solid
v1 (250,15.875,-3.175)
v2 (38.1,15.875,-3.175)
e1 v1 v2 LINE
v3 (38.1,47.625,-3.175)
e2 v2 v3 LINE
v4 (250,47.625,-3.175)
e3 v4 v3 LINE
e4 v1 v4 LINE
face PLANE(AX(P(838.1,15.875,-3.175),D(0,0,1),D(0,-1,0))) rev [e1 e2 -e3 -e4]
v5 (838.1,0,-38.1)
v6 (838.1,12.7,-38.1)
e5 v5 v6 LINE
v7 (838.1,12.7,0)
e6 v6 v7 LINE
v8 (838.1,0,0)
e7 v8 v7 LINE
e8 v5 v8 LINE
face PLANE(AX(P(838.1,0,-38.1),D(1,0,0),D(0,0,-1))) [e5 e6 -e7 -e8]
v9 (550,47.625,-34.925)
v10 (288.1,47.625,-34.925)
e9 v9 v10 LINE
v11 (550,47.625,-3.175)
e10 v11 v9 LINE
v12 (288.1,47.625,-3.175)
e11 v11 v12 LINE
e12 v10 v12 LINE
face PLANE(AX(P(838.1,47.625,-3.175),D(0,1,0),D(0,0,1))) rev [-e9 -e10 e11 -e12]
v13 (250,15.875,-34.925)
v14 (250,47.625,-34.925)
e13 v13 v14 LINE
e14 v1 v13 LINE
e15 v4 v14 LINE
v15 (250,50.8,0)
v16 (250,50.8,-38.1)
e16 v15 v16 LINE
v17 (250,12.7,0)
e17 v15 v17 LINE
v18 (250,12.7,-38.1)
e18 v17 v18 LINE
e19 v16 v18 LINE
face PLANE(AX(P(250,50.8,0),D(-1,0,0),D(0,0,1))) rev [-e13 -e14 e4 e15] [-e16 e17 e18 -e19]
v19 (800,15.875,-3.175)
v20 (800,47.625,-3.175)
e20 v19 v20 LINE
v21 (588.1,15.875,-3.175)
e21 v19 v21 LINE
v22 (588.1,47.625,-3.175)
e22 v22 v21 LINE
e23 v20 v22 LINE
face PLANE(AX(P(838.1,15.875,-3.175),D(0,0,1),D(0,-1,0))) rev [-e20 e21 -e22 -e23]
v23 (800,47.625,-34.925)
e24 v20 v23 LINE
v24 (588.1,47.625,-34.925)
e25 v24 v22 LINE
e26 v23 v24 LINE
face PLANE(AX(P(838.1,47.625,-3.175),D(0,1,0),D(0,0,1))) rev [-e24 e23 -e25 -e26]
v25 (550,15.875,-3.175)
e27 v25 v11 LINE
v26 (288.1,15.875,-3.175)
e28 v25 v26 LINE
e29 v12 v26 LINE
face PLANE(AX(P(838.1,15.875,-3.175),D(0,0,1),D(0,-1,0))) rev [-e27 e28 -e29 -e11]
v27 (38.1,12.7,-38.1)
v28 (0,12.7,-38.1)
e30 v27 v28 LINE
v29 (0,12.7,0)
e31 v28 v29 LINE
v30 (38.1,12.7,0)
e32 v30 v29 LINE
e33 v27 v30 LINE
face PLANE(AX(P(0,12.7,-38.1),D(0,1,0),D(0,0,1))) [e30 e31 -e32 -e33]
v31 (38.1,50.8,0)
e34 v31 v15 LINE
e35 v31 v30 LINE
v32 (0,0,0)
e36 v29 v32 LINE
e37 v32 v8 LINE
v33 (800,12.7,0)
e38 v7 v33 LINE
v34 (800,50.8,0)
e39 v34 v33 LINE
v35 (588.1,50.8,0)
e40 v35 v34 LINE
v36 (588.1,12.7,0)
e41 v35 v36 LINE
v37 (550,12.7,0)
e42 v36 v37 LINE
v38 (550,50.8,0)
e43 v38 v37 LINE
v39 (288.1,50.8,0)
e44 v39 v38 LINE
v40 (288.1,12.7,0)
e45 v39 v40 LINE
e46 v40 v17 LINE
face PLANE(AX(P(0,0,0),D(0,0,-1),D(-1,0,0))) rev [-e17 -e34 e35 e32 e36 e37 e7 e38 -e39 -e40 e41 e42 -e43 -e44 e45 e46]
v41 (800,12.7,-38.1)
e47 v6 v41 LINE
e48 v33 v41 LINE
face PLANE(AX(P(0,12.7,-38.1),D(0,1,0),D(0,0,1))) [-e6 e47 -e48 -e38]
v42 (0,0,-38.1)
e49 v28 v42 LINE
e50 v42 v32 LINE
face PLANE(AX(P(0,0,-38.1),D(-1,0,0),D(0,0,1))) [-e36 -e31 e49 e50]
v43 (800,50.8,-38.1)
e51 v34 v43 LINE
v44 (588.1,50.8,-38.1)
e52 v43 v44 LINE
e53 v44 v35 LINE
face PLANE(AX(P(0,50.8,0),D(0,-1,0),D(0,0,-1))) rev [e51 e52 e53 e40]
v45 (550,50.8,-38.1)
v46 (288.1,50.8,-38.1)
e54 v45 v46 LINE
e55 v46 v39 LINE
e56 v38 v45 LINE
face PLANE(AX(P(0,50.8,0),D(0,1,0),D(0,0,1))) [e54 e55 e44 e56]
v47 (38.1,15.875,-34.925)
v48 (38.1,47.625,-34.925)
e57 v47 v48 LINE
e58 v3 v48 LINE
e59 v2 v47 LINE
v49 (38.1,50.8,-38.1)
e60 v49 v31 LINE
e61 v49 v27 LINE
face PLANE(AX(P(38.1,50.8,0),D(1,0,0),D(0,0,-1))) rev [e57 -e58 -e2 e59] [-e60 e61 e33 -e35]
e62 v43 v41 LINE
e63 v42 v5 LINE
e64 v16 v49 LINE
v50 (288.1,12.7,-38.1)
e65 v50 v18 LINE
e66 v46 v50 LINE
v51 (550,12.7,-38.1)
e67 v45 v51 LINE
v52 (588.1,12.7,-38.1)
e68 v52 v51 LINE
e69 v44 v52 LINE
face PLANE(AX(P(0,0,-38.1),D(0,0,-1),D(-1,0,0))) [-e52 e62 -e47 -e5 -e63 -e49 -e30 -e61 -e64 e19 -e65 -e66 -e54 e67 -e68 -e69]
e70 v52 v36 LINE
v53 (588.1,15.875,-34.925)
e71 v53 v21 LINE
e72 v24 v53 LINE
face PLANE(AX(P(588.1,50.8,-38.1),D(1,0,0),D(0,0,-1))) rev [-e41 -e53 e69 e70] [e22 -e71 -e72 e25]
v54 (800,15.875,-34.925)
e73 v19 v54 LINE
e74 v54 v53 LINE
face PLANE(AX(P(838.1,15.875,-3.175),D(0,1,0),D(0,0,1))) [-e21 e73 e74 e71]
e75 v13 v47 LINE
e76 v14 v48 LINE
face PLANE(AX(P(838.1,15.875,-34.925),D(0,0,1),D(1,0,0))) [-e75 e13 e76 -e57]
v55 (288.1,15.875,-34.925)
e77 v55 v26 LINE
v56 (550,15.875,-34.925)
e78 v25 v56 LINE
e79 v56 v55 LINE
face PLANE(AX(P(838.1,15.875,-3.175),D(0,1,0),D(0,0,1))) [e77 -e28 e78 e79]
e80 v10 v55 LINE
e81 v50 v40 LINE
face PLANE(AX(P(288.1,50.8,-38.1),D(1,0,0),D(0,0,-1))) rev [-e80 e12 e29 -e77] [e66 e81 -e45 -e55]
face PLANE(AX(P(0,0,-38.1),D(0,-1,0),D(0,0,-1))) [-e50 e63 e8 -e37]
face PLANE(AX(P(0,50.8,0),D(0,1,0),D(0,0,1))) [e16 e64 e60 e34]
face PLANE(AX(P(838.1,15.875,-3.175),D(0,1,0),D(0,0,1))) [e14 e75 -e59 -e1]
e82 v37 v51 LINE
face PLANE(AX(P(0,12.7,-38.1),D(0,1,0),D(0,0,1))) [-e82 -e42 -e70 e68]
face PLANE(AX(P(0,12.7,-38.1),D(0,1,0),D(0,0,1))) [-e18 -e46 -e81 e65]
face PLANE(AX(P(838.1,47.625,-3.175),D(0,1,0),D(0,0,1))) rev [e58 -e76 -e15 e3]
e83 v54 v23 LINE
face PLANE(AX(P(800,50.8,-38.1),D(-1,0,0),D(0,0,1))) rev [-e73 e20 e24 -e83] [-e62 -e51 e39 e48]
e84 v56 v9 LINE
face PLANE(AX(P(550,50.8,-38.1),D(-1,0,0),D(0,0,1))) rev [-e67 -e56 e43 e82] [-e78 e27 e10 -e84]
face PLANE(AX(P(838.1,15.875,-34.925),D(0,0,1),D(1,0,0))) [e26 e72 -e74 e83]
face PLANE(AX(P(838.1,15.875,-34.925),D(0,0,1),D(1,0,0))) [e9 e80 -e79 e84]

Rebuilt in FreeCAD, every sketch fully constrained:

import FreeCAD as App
import Part
import Sketcher
Q = App.Units.Quantity


def add_polygon(sketch, points):
    """Adds a closed chain of lines whose ends are joined by coincident constraints."""
    first, n = sketch.GeometryCount, len(points)
    for a, b in zip(points, points[1:] + points[:1]):
        sketch.addGeometry(Part.LineSegment(App.Vector(*a, 0), App.Vector(*b, 0)), False)
    for i in range(n):
        sketch.addConstraint(Sketcher.Constraint("Coincident", first + i, 2, first + (i + 1) % n, 1))

doc = App.newDocument("Part")
params = doc.addObject("Spreadsheet::Sheet", "Params")
for row, (alias, value) in enumerate([
    ("sketch1_width", "838.1 mm"),
    ("sketch1_height", "12.7 mm"),
    ("pad1_length", "38.1 mm"),
    ("sketch2_width", "211.9 mm"),
    ("sketch2_width2", "261.9 mm"),
    ("sketch2_height", "38.1 mm"),
    ("pad2_length", "38.1 mm"),
    ("sketch3_width", "31.75 mm"),
], start=1):
    params.set(f"A{row}", alias)
    params.set(f"B{row}", "=" + value)
    params.setAlias(f"B{row}", alias)

body = doc.addObject("PartDesign::Body", "Body")

# Sketch on XY plane
sketch1 = doc.addObject("Sketcher::SketchObject", "Sketch")
body.addObject(sketch1)
sketch1.AttachmentSupport = (doc.XY_Plane, [""])
sketch1.MapMode = "FlatFace"
add_polygon(sketch1, [(0, 13), (0, 0), (838, 0), (838, 13)])  # lines 0-3
sketch1.addConstraint(Sketcher.Constraint("Vertical", 0))
sketch1.addConstraint(Sketcher.Constraint("Horizontal", 1))
sketch1.addConstraint(Sketcher.Constraint("Vertical", 2))
sketch1.addConstraint(Sketcher.Constraint("Horizontal", 3))
sketch1.addConstraint(Sketcher.Constraint("Coincident", 0, 2, -1, 1))
sketch1.addConstraint(Sketcher.Constraint("DistanceX", 1, 1, 1, 2, Q("838.1 mm")))
sketch1.addConstraint(Sketcher.Constraint("DistanceY", 0, 2, 0, 1, Q("12.7 mm")))
sketch1.setExpression("Constraints[9]", "Params.sketch1_width")
sketch1.setExpression("Constraints[10]", "Params.sketch1_height")
pad1 = doc.addObject("PartDesign::Pad", "Pad")
body.addObject(pad1)
pad1.Profile = sketch1
pad1.setExpression("Length", "Params.pad1_length")
pad1.Reversed = True

# Sketch on XZ plane
sketch2 = doc.addObject("Sketcher::SketchObject", "Sketch001")
body.addObject(sketch2)
sketch2.AttachmentSupport = (doc.XZ_Plane, [""])
sketch2.MapMode = "FlatFace"
sketch2.AttachmentOffset = App.Placement(App.Vector(0, 0, -12.7), App.Rotation())
add_polygon(sketch2, [(38, -38), (38, 0), (250, 0), (250, -38)])  # lines 0-3
add_polygon(sketch2, [(288, -38), (288, 0), (550, 0), (550, -38)])  # lines 4-7
add_polygon(sketch2, [(588, -38), (588, 0), (800, 0), (800, -38)])  # lines 8-11
sketch2.addConstraint(Sketcher.Constraint("Vertical", 0))
sketch2.addConstraint(Sketcher.Constraint("Horizontal", 1))
sketch2.addConstraint(Sketcher.Constraint("Vertical", 2))
sketch2.addConstraint(Sketcher.Constraint("Horizontal", 3))
sketch2.addConstraint(Sketcher.Constraint("Vertical", 4))
sketch2.addConstraint(Sketcher.Constraint("Horizontal", 5))
sketch2.addConstraint(Sketcher.Constraint("Vertical", 6))
sketch2.addConstraint(Sketcher.Constraint("Horizontal", 7))
sketch2.addConstraint(Sketcher.Constraint("Vertical", 8))
sketch2.addConstraint(Sketcher.Constraint("Horizontal", 9))
sketch2.addConstraint(Sketcher.Constraint("Vertical", 10))
sketch2.addConstraint(Sketcher.Constraint("Horizontal", 11))
sketch2.addConstraint(Sketcher.Constraint("PointOnObject", 0, 2, -1))
sketch2.addConstraint(Sketcher.Constraint("PointOnObject", 4, 2, -1))
sketch2.addConstraint(Sketcher.Constraint("PointOnObject", 8, 2, -1))
sketch2.addConstraint(Sketcher.Constraint("Horizontal", 3, 2, 6, 2))
sketch2.addConstraint(Sketcher.Constraint("Horizontal", 7, 2, 10, 2))
sketch2.addConstraint(Sketcher.Constraint("Equal", 3, 9))
sketch2.addConstraint(Sketcher.Constraint("DistanceX", 1, 1, 1, 2, Q("211.9 mm")))
sketch2.addConstraint(Sketcher.Constraint("DistanceX", 5, 1, 5, 2, Q("261.9 mm")))
sketch2.addConstraint(Sketcher.Constraint("DistanceY", 0, 1, 0, 2, Q("38.1 mm")))
sketch2.addConstraint(Sketcher.Constraint("DistanceX", -1, 1, 1, 2, Q("250 mm")))
sketch2.addConstraint(Sketcher.Constraint("DistanceX", -1, 1, 5, 2, Q("550 mm")))
sketch2.addConstraint(Sketcher.Constraint("DistanceX", -1, 1, 9, 2, Q("800 mm")))
sketch2.setExpression("Constraints[30]", "Params.sketch2_width")
sketch2.setExpression("Constraints[31]", "Params.sketch2_width2")
sketch2.setExpression("Constraints[32]", "Params.sketch2_height")
pad2 = doc.addObject("PartDesign::Pad", "Pad001")
body.addObject(pad2)
pad2.Profile = sketch2
pad2.setExpression("Length", "Params.pad2_length")
pad2.Reversed = True

# Sketch on YZ plane
sketch3 = doc.addObject("Sketcher::SketchObject", "Sketch002")
body.addObject(sketch3)
sketch3.AttachmentSupport = (doc.YZ_Plane, [""])
sketch3.MapMode = "FlatFace"
sketch3.AttachmentOffset = App.Placement(App.Vector(0, 0, 38.1), App.Rotation())
add_polygon(sketch3, [(48, -35), (16, -35), (16, -3), (48, -3)])  # lines 0-3
sketch3.addConstraint(Sketcher.Constraint("Horizontal", 0))
sketch3.addConstraint(Sketcher.Constraint("Vertical", 1))
sketch3.addConstraint(Sketcher.Constraint("Horizontal", 2))
sketch3.addConstraint(Sketcher.Constraint("Vertical", 3))
sketch3.addConstraint(Sketcher.Constraint("Equal", 2, 1))
sketch3.addConstraint(Sketcher.Constraint("DistanceX", 0, 2, 0, 1, Q("31.75 mm")))
sketch3.addConstraint(Sketcher.Constraint("DistanceX", -1, 1, 0, 2, Q("15.875 mm")))
sketch3.addConstraint(Sketcher.Constraint("DistanceY", 0, 2, -1, 1, Q("34.925 mm")))
sketch3.setExpression("Constraints[9]", "Params.sketch3_width")
pocket1 = doc.addObject("PartDesign::Pocket", "Pocket")
body.addObject(pocket1)
pocket1.Profile = sketch3
pocket1.Type = "ThroughAll"
pocket1.Reversed = True

doc.recompute()
